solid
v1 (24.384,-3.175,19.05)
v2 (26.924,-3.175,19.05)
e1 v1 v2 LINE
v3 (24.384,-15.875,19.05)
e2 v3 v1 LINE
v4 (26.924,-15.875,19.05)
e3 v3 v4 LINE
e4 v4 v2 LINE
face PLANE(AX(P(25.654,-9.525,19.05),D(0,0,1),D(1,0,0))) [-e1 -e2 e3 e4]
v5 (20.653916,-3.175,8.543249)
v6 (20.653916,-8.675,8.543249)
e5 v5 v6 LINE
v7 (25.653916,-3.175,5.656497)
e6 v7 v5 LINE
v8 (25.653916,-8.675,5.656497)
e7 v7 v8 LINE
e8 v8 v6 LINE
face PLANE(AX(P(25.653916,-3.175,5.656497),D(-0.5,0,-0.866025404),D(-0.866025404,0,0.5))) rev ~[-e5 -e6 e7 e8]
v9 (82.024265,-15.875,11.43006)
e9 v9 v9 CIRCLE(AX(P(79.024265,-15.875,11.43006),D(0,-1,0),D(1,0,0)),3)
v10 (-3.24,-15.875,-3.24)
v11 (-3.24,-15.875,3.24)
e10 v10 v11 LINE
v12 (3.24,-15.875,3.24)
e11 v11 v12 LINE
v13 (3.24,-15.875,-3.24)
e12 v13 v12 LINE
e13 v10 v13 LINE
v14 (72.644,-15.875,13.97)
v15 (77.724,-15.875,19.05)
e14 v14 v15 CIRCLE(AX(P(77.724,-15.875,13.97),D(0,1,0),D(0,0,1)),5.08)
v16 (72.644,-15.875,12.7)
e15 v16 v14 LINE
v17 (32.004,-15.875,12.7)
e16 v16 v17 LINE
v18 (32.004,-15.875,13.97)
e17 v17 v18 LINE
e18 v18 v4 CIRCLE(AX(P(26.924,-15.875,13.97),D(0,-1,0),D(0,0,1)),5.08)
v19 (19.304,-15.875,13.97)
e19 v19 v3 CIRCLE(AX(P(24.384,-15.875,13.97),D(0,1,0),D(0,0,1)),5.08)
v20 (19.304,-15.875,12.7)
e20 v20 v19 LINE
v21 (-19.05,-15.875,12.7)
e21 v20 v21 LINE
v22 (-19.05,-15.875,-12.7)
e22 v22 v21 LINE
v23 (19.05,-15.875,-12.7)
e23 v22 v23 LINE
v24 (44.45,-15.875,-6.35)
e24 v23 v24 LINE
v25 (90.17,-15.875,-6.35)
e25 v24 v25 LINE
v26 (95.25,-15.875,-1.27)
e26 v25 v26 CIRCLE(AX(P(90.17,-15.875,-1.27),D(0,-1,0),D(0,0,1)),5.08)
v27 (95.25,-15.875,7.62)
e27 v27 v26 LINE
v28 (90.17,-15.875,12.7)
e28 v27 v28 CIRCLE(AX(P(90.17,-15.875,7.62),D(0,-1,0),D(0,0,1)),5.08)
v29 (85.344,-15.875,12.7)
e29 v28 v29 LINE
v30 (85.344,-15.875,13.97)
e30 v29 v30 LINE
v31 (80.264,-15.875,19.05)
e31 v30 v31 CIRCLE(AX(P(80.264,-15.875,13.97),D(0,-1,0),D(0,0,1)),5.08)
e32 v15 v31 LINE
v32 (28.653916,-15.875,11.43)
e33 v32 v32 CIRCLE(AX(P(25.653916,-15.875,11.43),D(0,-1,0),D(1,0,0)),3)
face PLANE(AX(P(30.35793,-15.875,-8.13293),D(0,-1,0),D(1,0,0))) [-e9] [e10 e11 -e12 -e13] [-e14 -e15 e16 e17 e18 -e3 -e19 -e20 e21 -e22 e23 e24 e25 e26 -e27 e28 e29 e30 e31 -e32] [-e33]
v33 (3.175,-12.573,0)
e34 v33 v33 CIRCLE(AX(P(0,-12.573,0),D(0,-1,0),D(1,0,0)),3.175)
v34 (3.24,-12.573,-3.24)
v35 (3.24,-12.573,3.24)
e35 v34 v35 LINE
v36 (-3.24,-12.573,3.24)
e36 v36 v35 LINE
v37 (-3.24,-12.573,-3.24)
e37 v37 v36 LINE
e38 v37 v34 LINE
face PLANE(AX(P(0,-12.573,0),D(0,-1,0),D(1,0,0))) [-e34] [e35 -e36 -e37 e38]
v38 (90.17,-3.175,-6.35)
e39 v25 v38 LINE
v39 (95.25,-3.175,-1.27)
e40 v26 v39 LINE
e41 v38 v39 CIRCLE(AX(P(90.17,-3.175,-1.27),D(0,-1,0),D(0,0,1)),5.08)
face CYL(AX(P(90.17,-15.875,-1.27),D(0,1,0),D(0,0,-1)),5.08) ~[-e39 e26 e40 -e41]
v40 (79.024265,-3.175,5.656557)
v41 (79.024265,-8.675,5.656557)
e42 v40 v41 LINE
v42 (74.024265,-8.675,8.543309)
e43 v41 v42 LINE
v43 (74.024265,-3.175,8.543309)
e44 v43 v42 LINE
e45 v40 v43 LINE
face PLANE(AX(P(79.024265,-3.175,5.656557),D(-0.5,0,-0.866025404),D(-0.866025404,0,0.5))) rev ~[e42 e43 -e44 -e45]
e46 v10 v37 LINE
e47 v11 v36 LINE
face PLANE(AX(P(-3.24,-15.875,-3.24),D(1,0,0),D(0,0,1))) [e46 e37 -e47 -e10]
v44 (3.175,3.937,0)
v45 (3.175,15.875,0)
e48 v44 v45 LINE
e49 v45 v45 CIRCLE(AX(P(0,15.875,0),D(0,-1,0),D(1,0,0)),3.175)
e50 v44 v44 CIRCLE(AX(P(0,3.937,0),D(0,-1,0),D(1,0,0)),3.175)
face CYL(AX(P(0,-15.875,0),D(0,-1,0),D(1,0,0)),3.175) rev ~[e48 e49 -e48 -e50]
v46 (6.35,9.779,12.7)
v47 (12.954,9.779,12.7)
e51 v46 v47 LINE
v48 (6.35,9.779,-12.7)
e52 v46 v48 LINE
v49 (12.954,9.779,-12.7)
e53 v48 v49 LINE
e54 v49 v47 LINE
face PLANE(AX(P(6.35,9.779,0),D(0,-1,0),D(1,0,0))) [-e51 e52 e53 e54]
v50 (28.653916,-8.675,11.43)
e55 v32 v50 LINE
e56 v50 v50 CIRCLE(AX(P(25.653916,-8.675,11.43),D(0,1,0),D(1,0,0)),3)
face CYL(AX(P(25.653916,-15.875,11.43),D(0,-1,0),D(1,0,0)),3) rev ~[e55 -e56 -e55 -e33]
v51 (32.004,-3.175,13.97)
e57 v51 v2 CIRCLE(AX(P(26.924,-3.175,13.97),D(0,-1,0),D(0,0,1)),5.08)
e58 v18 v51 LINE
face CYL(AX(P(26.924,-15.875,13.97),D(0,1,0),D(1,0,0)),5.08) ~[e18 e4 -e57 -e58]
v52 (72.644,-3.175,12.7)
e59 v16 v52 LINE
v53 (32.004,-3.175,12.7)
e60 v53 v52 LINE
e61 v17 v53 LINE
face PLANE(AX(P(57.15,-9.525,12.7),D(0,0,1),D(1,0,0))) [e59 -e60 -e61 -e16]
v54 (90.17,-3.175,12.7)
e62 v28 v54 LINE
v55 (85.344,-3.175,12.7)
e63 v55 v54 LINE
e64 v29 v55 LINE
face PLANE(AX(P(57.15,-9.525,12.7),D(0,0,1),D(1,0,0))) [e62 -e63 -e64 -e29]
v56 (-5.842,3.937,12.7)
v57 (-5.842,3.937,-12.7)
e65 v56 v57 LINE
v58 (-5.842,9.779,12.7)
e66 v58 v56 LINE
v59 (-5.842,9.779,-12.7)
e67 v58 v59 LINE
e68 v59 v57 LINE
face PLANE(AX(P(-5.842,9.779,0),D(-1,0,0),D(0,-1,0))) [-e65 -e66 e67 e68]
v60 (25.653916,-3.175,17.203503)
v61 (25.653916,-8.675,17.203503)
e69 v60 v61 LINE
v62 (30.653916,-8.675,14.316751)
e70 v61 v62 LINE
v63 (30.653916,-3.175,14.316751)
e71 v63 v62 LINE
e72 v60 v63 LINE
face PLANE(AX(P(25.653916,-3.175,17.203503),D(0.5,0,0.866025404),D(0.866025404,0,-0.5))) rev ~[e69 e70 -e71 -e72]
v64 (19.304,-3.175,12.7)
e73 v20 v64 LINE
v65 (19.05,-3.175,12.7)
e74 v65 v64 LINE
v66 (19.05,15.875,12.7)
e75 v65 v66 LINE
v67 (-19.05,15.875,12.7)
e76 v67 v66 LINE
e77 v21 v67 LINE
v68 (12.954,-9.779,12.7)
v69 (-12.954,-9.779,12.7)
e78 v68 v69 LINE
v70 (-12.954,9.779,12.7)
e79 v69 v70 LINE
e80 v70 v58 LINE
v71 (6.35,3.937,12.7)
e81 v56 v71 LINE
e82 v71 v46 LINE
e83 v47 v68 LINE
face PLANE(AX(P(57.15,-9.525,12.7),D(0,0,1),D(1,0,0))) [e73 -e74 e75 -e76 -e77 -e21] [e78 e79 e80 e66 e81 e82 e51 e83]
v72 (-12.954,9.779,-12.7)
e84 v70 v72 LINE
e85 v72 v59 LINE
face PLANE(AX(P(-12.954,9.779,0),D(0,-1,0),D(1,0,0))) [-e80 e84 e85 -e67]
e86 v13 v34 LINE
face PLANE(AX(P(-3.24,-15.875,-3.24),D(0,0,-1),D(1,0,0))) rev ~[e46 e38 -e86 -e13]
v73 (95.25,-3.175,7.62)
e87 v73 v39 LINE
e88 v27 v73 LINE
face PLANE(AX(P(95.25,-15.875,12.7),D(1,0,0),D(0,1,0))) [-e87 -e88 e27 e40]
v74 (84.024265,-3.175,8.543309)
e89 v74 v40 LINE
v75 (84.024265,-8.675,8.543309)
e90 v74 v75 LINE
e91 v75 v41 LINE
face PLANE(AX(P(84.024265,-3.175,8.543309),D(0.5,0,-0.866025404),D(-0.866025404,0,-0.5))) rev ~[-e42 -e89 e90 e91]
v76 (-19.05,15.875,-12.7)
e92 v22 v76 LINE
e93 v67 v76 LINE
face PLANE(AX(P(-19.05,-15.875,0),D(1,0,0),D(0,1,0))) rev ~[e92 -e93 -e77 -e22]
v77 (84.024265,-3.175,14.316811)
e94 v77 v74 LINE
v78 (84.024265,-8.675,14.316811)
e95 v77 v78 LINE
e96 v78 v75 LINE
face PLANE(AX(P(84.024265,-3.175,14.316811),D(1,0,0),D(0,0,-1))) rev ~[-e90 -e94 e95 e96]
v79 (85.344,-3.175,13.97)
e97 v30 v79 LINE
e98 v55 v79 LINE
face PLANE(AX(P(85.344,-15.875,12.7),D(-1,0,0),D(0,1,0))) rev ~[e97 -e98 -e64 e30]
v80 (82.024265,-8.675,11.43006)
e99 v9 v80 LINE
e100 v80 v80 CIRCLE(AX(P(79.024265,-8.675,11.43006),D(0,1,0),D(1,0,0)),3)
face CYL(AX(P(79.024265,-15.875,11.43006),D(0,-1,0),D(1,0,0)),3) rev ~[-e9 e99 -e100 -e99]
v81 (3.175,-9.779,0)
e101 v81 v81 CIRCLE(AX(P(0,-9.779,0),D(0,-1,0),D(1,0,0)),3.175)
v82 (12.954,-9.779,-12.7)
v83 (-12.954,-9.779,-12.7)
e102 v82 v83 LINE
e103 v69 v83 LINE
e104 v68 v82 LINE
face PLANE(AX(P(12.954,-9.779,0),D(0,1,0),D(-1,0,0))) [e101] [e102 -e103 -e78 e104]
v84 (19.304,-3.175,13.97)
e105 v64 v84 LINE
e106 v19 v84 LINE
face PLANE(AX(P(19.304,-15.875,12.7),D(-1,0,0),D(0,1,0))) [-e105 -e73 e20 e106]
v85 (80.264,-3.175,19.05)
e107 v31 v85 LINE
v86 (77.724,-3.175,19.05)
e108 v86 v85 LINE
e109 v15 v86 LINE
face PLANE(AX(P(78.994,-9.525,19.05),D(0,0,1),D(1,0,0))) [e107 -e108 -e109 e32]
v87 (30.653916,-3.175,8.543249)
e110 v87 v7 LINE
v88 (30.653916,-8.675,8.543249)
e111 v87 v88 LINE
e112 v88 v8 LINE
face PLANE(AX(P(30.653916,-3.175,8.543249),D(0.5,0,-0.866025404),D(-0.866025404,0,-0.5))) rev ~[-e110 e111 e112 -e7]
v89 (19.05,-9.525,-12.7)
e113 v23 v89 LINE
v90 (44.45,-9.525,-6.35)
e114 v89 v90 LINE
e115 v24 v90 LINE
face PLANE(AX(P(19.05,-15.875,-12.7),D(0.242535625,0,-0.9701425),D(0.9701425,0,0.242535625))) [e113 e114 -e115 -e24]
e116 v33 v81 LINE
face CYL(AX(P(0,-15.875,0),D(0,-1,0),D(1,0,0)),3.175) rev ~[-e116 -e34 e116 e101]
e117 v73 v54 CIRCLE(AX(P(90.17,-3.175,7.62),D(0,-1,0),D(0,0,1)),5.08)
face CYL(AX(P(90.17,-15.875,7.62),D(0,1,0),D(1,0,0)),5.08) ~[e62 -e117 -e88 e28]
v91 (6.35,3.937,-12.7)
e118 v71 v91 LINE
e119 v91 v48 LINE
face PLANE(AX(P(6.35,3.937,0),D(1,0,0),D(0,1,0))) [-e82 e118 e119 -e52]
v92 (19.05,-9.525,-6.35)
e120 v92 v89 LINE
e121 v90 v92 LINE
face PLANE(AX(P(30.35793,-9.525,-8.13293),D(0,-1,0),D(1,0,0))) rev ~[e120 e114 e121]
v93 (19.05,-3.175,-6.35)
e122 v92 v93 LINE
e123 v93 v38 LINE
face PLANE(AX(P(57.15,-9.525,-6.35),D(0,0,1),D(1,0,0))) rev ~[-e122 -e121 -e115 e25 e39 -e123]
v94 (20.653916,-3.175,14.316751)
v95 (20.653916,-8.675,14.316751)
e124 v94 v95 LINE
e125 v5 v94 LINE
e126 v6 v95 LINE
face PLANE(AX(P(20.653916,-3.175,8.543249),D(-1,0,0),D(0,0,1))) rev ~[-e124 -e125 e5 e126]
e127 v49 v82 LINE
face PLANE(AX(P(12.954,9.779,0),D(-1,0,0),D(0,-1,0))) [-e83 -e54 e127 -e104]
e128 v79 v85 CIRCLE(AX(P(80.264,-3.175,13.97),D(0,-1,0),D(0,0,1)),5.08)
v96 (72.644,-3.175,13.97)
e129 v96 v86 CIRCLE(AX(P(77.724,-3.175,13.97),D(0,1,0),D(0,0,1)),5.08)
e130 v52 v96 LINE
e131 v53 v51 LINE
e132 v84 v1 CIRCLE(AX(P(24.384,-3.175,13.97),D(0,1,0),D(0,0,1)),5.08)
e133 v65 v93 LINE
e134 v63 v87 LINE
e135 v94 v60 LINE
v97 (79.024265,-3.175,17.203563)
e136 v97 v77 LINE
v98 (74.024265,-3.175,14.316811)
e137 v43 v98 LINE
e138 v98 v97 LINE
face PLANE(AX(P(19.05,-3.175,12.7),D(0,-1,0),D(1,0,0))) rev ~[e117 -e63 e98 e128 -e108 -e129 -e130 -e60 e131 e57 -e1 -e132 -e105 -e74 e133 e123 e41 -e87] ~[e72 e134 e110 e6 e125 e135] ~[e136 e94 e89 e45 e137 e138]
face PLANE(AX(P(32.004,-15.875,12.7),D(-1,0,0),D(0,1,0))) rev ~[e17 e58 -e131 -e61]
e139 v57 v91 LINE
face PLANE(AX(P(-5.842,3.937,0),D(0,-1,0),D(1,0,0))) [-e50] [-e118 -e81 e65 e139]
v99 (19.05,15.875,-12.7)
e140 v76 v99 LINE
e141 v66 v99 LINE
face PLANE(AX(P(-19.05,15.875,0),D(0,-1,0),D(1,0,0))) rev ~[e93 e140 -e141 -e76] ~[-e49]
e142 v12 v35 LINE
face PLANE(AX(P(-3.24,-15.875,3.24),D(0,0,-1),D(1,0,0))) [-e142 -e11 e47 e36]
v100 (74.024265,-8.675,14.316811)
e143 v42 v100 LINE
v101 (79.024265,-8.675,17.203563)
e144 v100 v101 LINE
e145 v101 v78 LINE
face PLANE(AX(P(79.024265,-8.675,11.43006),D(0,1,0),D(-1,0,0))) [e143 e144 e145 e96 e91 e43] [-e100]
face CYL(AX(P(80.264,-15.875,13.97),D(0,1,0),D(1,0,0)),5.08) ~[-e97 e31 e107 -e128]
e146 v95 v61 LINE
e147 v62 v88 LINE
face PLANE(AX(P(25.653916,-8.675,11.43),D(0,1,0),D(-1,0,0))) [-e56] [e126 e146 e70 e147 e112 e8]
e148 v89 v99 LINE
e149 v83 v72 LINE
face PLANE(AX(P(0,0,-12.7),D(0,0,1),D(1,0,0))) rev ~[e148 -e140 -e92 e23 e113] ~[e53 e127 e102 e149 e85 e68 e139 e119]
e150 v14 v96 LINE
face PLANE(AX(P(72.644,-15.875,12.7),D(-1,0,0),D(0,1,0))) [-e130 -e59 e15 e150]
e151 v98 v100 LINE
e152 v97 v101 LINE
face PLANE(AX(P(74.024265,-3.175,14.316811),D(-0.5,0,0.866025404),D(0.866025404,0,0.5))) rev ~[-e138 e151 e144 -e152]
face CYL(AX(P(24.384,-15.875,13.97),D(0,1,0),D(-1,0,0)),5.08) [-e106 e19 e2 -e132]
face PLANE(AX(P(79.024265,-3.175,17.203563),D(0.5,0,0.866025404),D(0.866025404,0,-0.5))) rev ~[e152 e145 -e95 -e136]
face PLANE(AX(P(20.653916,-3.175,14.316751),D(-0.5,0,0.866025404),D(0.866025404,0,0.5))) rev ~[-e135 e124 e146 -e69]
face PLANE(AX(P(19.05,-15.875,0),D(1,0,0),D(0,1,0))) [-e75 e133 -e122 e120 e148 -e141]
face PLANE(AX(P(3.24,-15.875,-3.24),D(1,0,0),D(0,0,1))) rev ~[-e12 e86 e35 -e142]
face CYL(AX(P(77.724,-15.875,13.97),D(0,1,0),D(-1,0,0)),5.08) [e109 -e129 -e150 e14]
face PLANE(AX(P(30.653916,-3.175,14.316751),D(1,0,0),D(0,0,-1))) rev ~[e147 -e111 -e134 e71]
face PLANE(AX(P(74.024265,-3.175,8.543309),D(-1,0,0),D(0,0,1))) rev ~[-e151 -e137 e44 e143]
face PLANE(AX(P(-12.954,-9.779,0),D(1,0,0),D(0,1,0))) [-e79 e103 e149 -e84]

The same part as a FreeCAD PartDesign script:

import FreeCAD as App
import Part
import Sketcher

V = App.Vector
Q = App.Units.Quantity


def edges_at(feature, points):
    """Names of the edges that pass closest to the given points."""
    edges = feature.Shape.Edges
    near = lambda p: min(range(len(edges)), key=lambda i: edges[i].distToShape(Part.Vertex(*p))[0])
    return sorted({f"Edge{near(p) + 1}" for p in points})


def add_polygon(sketch, points):
    """Adds a closed chain of lines whose ends are joined by coincident constraints."""
    first, n = sketch.GeometryCount, len(points)
    for a, b in zip(points, points[1:] + points[:1]):
        sketch.addGeometry(Part.LineSegment(App.Vector(*a, 0), App.Vector(*b, 0)), False)
    for i in range(n):
        sketch.addConstraint(Sketcher.Constraint("Coincident", first + i, 2, first + (i + 1) % n, 1))

doc = App.newDocument("Part")
body = doc.addObject("PartDesign::Body", "Body")

sketch1 = doc.addObject("Sketcher::SketchObject", "Sketch")
body.addObject(sketch1)
sketch1.AttachmentSupport = (doc.XY_Plane, [""])
sketch1.MapMode = "FlatFace"
add_polygon(sketch1, [(-19, 16), (-19, -16), (19, -16), (19, 16)])
add_polygon(sketch1, [(6, 10), (13, 10), (13, -10), (-13, -10), (-13, 10), (-6, 10), (-6, 4), (6, 4)])
sketch1.addConstraint([
    Sketcher.Constraint("Vertical", 0),
    Sketcher.Constraint("Horizontal", 1),
    Sketcher.Constraint("Vertical", 2),
    Sketcher.Constraint("Horizontal", 3),
    Sketcher.Constraint("Horizontal", 4),
    Sketcher.Constraint("Vertical", 5),
    Sketcher.Constraint("Horizontal", 6),
    Sketcher.Constraint("Vertical", 7),
    Sketcher.Constraint("Horizontal", 8),
    Sketcher.Constraint("Vertical", 9),
    Sketcher.Constraint("Horizontal", 10),
    Sketcher.Constraint("Vertical", 11),
    Sketcher.Constraint("Symmetric", 0, 2, 2, 2, -1, 1),
    Sketcher.Constraint("Symmetric", 4, 2, 6, 2, -1, 1),
    Sketcher.Constraint("Horizontal", 4, 2, 7, 2),
    Sketcher.Constraint("DistanceX", 1, 1, 1, 2, Q("1.5 in")),
    Sketcher.Constraint("DistanceX", 4, 1, 4, 2, Q("0.26 in")),
    Sketcher.Constraint("DistanceX", 6, 2, 6, 1, Q("1.02 in")),
    Sketcher.Constraint("DistanceX", 8, 1, 8, 2, Q("0.28 in")),
    Sketcher.Constraint("DistanceY", 0, 2, 0, 1, Q("1.25 in")),
    Sketcher.Constraint("DistanceY", 5, 2, 5, 1, Q("0.77 in")),
    Sketcher.Constraint("DistanceY", 9, 2, 9, 1, Q("0.23 in")),
])
pad1 = doc.addObject("PartDesign::Pad", "Pad")
body.addObject(pad1)
pad1.Profile = sketch1
pad1.Length = Q("1 in")
pad1.Midplane = True

sketch2 = doc.addObject("Sketcher::SketchObject", "Sketch001")
body.addObject(sketch2)
sketch2.AttachmentSupport = (doc.XZ_Plane, [""])
sketch2.MapMode = "FlatFace"
sketch2.AttachmentOffset = App.Placement(V(0, 0, 0.625 * 25.4), App.Rotation())
sketch2.addGeometry(Part.Circle(V(0, 0, 0), V(0, 0, 1), 3.2), False)
sketch2.addConstraint([
    Sketcher.Constraint("Coincident", 0, 3, -1, 1),
    Sketcher.Constraint("Diameter", 0, Q("0.25 in")),
])
pocket1 = doc.addObject("PartDesign::Pocket", "Pocket")
body.addObject(pocket1)
pocket1.Profile = sketch2
pocket1.Type = "ThroughAll"

sketch3 = doc.addObject("Sketcher::SketchObject", "Sketch002")
body.addObject(sketch3)
sketch3.AttachmentSupport = (doc.XZ_Plane, [""])
sketch3.MapMode = "FlatFace"
sketch3.AttachmentOffset = App.Placement(V(0, 0, 0.625 * 25.4), App.Rotation())
add_polygon(sketch3, [(-3, 3), (-3, -3), (3, -3), (3, 3)])
sketch3.addConstraint([
    Sketcher.Constraint("Vertical", 0),
    Sketcher.Constraint("Horizontal", 1),
    Sketcher.Constraint("Vertical", 2),
    Sketcher.Constraint("Horizontal", 3),
    Sketcher.Constraint("Symmetric", 0, 2, 2, 2, -1, 1),
    Sketcher.Constraint("Equal", 3, 0),
    Sketcher.Constraint("DistanceX", 1, 1, 1, 2, 6.48),
])
pocket2 = doc.addObject("PartDesign::Pocket", "Pocket001")
body.addObject(pocket2)
pocket2.Profile = sketch3
pocket2.Length = Q("0.13 in")

sketch4 = doc.addObject("Sketcher::SketchObject", "Sketch003")
body.addObject(sketch4)
sketch4.AttachmentSupport = (doc.XY_Plane, [""])
sketch4.MapMode = "FlatFace"
sketch4.AttachmentOffset = App.Placement(V(0, 0, 0.5 * 25.4), App.Rotation())
add_polygon(sketch4, [(19, -3), (19, -16), (95, -16), (95, -3)])
sketch4.addConstraint([
    Sketcher.Constraint("Vertical", 0),
    Sketcher.Constraint("Horizontal", 1),
    Sketcher.Constraint("Vertical", 2),
    Sketcher.Constraint("Horizontal", 3),
    Sketcher.Constraint("DistanceX", 1, 1, 1, 2, Q("3 in")),
    Sketcher.Constraint("DistanceY", 0, 2, 0, 1, Q("0.5 in")),
    Sketcher.Constraint("DistanceX", -1, 1, 0, 2, Q("0.75 in")),
    Sketcher.Constraint("DistanceY", 0, 2, -1, 1, Q("0.625 in")),
])
pad2 = doc.addObject("PartDesign::Pad", "Pad001")
body.addObject(pad2)
pad2.Profile = sketch4
pad2.Length = Q("0.75 in")
pad2.Reversed = True

sketch5 = doc.addObject("Sketcher::SketchObject", "Sketch004")
body.addObject(sketch5)
sketch5.AttachmentSupport = (doc.XZ_Plane, [""])
sketch5.MapMode = "FlatFace"
sketch5.AttachmentOffset = App.Placement(V(0, 0, 0.625 * 25.4), App.Rotation())
add_polygon(sketch5, [(19, -6), (19, -13), (44, -6)])
sketch5.addConstraint([
    Sketcher.Constraint("Vertical", 0),
    Sketcher.Constraint("Horizontal", 2),
    Sketcher.Constraint("DistanceX", 2, 2, 2, 1, Q("1 in")),
    Sketcher.Constraint("DistanceY", 0, 2, 0, 1, Q("0.25 in")),
    Sketcher.Constraint("DistanceY", 0, 2, -1, 1, Q("0.5 in")),
    Sketcher.Constraint("DistanceX", -1, 1, 0, 2, Q("0.75 in")),
])
pad3 = doc.addObject("PartDesign::Pad", "Pad002")
body.addObject(pad3)
pad3.Profile = sketch5
pad3.Length = Q("0.25 in")
pad3.Reversed = True

sketch6 = doc.addObject("Sketcher::SketchObject", "Sketch005")
body.addObject(sketch6)
sketch6.AttachmentSupport = (doc.XY_Plane, [""])
sketch6.MapMode = "FlatFace"
sketch6.AttachmentOffset = App.Placement(V(0, 0, 0.5 * 25.4), App.Rotation())
add_polygon(sketch6, [(19, -3), (19, -16), (32, -16), (32, -3)])
add_polygon(sketch6, [(73, -3), (73, -16), (85, -16), (85, -3)])
sketch6.addConstraint([
    Sketcher.Constraint("Vertical", 0),
    Sketcher.Constraint("Horizontal", 1),
    Sketcher.Constraint("Vertical", 2),
    Sketcher.Constraint("Horizontal", 3),
    Sketcher.Constraint("Vertical", 4),
    Sketcher.Constraint("Horizontal", 5),
    Sketcher.Constraint("Vertical", 6),
    Sketcher.Constraint("Horizontal", 7),
    Sketcher.Constraint("Horizontal", 1, 2, 4, 2),
    Sketcher.Constraint("Horizontal", 3, 2, 6, 2),
    Sketcher.Constraint("Equal", 3, 5),
    Sketcher.Constraint("Equal", 7, 0),
    Sketcher.Constraint("DistanceX", 1, 1, 1, 2, Q("0.5 in")),
    Sketcher.Constraint("DistanceX", 1, 2, 4, 2, Q("1.6 in")),
    Sketcher.Constraint("DistanceX", -1, 1, 0, 2, Q("0.76 in")),
    Sketcher.Constraint("DistanceY", 0, 2, -1, 1, Q("0.625 in")),
])
pad4 = doc.addObject("PartDesign::Pad", "Pad003")
body.addObject(pad4)
pad4.Profile = sketch6
pad4.Length = Q("0.25 in")
doc.recompute()

fillet = doc.addObject("PartDesign::Fillet", "Fillet")
body.addObject(fillet)
fillet.Base = (pad4, edges_at(pad4, [
    (19.304, -9.525, 19.05),
    (32.004, -9.525, 19.05),
    (72.644, -9.525, 19.05),
    (85.344, -9.525, 19.05),
]))
fillet.Radius = Q("0.2 in")

sketch7 = doc.addObject("Sketcher::SketchObject", "Sketch006")
body.addObject(sketch7)
sketch7.AttachmentSupport = (doc.XZ_Plane, [""])
sketch7.MapMode = "FlatFace"
sketch7.AttachmentOffset = App.Placement(V(0, 0, 0.625 * 25.4), App.Rotation())
sketch7.addGeometry([
    Part.Circle(V(25.7, 11.4, 0), V(0, 0, 1), 3),
    Part.Circle(V(79, 11.4, 0), V(0, 0, 1), 3),
], False)
sketch7.addConstraint([
    Sketcher.Constraint("Equal", 0, 1),
    Sketcher.Constraint("Diameter", 0, 6.0),
    Sketcher.Constraint("DistanceY", -1, 1, 0, 3, Q("0.45 in")),
    Sketcher.Constraint("DistanceY", -1, 1, 1, 3, 11.43006),
    Sketcher.Constraint("DistanceX", 0, 3, 1, 3, 53.370349),
    Sketcher.Constraint("DistanceX", -1, 1, 0, 3, 25.653916),
])
pocket3 = doc.addObject("PartDesign::Pocket", "Pocket002")
body.addObject(pocket3)
pocket3.Profile = sketch7
pocket3.Type = "ThroughAll"

sketch8 = doc.addObject("Sketcher::SketchObject", "Sketch007")
body.addObject(sketch8)
sketch8.AttachmentSupport = (doc.XZ_Plane, [""])
sketch8.MapMode = "FlatFace"
sketch8.AttachmentOffset = App.Placement(V(0, 0, 0.125 * 25.4), App.Rotation())
add_polygon(sketch8, [(84, 8.5), (79, 5.7), (74, 8.5), (74, 14.3), (79, 17.2), (84, 14.3)])
sketch8.addGeometry(Part.Circle(V(79, 11.4, 0), V(0, 0, 1), 3), False)
add_polygon(sketch8, [(30.7, 8.5), (25.7, 5.7), (20.7, 8.5), (20.7, 14.3), (25.7, 17.2), (30.7, 14.3)])
sketch8.addGeometry(Part.Circle(V(25.7, 11.4, 0), V(0, 0, 1), 3), False)
sketch8.addConstraint([
    Sketcher.Constraint("Vertical", 2),
    Sketcher.Constraint("Vertical", 5),
    Sketcher.Constraint("Vertical", 9),
    Sketcher.Constraint("Vertical", 12),
    Sketcher.Constraint("Equal", 6, 13),
    Sketcher.Constraint("Parallel", 0, 3),
    Sketcher.Constraint("Parallel", 1, 4),
    Sketcher.Constraint("Parallel", 3, 7),
    Sketcher.Constraint("Parallel", 4, 8),
    Sketcher.Constraint("Parallel", 7, 10),
    Sketcher.Constraint("Parallel", 8, 11),
    Sketcher.Constraint("Horizontal", 2, 2, 4, 2),
    Sketcher.Constraint("Horizontal", 1, 2, 5, 2),
    Sketcher.Constraint("Horizontal", 9, 2, 11, 2),
    Sketcher.Constraint("Horizontal", 8, 2, 12, 2),
    Sketcher.Constraint("Vertical", 6, 3, 0, 2),
    Sketcher.Constraint("Vertical", 0, 2, 3, 2),
    Sketcher.Constraint("Vertical", 13, 3, 7, 2),
    Sketcher.Constraint("Equal", 5, 9),
    Sketcher.Constraint("Equal", 4, 7),
    Sketcher.Constraint("Angle", 0, Q("-150 deg")),
    Sketcher.Constraint("Diameter", 6, 6.0),
    Sketcher.Constraint("DistanceY", -1, 1, 13, 3, Q("0.45 in")),
    Sketcher.Constraint("DistanceX", 1, 2, 6, 3, 5.0),
    Sketcher.Constraint("DistanceY", 2, 1, 2, 2, 5.773503),
    Sketcher.Constraint("DistanceY", -1, 1, 6, 3, 11.43006),
    Sketcher.Constraint("DistanceY", -1, 1, 1, 2, 8.543309),
    Sketcher.Constraint("DistanceY", -1, 1, 8, 2, 8.543249),
    Sketcher.Constraint("DistanceX", 13, 3, 6, 3, 53.370349),
    Sketcher.Constraint("DistanceX", -1, 1, 6, 3, 79.024265),
])
pocket4 = doc.addObject("PartDesign::Pocket", "Pocket003")
body.addObject(pocket4)
pocket4.Profile = sketch8
pocket4.Length = 5.5
pocket4.Reversed = True
doc.recompute()

fillet2 = doc.addObject("PartDesign::Fillet", "Fillet001")
body.addObject(fillet2)
fillet2.Base = (pocket4, edges_at(pocket4, [(95.25, -9.525, 12.7), (95.25, -9.525, -6.35)]))
fillet2.Radius = Q("0.2 in")

doc.recompute()
